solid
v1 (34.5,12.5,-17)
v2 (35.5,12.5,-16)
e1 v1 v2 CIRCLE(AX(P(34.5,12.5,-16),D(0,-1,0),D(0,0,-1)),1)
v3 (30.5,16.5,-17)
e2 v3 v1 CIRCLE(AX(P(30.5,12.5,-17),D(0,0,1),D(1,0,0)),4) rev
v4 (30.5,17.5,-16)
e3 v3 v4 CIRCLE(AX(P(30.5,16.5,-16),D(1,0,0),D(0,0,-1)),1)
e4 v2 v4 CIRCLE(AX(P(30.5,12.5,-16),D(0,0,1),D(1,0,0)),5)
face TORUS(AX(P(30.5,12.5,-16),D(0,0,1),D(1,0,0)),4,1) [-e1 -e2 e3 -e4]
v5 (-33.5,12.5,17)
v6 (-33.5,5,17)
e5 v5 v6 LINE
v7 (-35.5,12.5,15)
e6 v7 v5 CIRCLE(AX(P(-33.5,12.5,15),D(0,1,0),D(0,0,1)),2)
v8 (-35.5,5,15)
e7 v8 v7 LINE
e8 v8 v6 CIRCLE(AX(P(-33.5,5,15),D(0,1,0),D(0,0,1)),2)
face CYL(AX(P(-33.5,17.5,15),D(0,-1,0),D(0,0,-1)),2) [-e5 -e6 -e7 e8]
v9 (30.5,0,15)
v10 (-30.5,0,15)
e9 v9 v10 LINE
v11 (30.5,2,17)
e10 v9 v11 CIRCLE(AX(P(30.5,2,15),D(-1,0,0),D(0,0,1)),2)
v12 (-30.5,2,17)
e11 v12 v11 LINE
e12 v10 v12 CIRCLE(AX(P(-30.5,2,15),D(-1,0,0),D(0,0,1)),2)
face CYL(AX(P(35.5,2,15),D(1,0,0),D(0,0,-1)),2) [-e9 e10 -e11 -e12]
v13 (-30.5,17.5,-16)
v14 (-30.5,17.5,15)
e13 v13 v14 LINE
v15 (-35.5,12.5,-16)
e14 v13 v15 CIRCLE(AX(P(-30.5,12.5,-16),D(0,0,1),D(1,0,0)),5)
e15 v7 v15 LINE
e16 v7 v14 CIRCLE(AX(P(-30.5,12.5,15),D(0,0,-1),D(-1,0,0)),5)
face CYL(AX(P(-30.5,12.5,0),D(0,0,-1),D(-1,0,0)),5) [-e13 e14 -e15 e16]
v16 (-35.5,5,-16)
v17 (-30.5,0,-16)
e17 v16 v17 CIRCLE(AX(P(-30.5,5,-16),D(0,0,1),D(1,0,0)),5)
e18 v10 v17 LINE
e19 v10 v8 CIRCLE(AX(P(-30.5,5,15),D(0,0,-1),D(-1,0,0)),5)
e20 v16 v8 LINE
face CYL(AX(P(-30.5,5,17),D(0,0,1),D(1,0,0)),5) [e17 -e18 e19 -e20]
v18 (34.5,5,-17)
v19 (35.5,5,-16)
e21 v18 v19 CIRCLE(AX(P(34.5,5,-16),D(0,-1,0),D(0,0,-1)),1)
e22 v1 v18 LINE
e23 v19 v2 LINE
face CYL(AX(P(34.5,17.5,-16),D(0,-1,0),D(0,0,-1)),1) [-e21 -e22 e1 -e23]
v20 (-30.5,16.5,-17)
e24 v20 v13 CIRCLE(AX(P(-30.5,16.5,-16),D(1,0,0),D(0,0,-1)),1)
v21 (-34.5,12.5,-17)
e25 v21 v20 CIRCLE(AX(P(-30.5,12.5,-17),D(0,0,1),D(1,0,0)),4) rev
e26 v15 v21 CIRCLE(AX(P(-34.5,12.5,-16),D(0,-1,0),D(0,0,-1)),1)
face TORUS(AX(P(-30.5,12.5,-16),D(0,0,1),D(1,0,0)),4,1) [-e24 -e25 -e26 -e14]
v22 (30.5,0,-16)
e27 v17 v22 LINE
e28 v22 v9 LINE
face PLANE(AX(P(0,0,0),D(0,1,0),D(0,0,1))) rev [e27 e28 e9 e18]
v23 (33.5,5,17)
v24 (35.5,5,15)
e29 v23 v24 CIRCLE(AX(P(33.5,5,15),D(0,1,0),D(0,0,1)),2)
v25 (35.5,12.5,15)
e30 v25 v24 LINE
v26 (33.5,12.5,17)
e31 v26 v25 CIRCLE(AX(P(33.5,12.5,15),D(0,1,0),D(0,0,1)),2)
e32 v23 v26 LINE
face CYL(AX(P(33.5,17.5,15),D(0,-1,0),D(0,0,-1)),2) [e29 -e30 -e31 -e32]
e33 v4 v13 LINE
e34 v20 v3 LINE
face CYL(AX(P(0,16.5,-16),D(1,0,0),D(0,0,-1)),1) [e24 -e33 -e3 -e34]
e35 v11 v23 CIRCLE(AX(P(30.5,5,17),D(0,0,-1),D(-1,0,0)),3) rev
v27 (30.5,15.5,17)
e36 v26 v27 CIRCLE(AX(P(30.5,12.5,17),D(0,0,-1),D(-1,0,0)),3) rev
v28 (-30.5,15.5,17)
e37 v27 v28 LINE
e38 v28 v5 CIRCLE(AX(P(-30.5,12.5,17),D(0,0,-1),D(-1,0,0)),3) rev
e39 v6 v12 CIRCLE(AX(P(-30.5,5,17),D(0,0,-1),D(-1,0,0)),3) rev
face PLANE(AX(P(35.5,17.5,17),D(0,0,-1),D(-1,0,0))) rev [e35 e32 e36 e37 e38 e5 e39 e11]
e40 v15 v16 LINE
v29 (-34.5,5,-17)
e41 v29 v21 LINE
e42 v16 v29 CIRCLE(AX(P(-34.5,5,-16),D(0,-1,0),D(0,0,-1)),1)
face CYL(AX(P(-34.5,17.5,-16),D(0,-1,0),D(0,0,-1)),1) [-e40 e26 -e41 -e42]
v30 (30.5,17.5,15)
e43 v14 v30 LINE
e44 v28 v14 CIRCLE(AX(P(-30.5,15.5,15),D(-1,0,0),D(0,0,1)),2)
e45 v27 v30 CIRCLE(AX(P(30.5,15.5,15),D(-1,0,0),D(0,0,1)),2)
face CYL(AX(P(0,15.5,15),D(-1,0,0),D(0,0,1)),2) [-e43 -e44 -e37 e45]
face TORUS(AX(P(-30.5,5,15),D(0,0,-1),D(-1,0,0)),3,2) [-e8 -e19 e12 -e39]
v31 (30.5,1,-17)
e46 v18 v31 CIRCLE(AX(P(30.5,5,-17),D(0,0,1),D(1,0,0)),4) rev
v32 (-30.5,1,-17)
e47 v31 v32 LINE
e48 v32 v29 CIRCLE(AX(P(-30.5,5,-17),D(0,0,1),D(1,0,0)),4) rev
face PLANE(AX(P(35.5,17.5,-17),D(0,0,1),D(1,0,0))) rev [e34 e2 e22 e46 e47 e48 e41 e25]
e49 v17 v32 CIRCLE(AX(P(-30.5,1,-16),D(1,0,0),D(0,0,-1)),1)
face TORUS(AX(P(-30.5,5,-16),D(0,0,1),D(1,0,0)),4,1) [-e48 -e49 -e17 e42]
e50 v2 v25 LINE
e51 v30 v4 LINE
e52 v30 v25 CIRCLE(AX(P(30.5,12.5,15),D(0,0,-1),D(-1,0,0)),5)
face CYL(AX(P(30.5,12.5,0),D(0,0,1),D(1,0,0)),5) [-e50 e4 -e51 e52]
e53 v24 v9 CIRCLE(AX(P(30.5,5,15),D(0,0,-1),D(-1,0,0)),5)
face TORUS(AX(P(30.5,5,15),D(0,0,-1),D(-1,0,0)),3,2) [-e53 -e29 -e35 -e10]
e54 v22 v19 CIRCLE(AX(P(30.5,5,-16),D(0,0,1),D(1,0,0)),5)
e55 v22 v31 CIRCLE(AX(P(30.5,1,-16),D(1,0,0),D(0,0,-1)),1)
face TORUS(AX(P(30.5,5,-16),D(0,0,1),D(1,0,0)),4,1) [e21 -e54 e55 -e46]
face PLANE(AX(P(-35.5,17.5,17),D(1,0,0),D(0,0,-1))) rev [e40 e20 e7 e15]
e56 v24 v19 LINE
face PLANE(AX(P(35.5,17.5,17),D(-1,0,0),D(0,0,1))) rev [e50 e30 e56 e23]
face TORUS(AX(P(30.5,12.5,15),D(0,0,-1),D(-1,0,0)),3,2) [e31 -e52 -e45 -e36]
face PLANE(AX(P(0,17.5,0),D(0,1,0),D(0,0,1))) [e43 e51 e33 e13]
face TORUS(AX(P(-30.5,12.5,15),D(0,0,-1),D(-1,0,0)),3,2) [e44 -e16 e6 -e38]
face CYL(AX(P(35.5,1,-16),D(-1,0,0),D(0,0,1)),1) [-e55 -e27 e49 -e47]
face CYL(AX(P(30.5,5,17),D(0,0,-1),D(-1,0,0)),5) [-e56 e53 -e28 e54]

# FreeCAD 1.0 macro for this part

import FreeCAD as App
import Part
import Sketcher


def edges_at(feature, points):
    """Names of the edges that pass closest to the given points."""
    edges = feature.Shape.Edges
    near = lambda p: min(range(len(edges)), key=lambda i: edges[i].distToShape(Part.Vertex(*p))[0])
    return sorted({f"Edge{near(p) + 1}" for p in points})


def add_polygon(sketch, points):
    """Adds a closed chain of lines whose ends are joined by coincident constraints."""
    first, n = sketch.GeometryCount, len(points)
    for a, b in zip(points, points[1:] + points[:1]):
        sketch.addGeometry(Part.LineSegment(App.Vector(*a, 0), App.Vector(*b, 0)), False)
    for i in range(n):
        sketch.addConstraint(Sketcher.Constraint("Coincident", first + i, 2, first + (i + 1) % n, 1))

doc = App.newDocument("Part")
body = doc.addObject("PartDesign::Body", "Body")

# Sketch on XZ plane
sketch1 = doc.addObject("Sketcher::SketchObject", "Sketch")
body.addObject(sketch1)
sketch1.AttachmentSupport = (doc.XZ_Plane, [""])
sketch1.MapMode = "FlatFace"
add_polygon(sketch1, [(-35.5, -17), (-35.5, 17), (35.5, 17), (35.5, -17)])  # lines 0-3
sketch1.addConstraint([
    Sketcher.Constraint("Vertical", 0),
    Sketcher.Constraint("Horizontal", 1),
    Sketcher.Constraint("Vertical", 2),
    Sketcher.Constraint("Horizontal", 3),
    Sketcher.Constraint("Symmetric", 0, 2, 2, 2, -1, 1),
    Sketcher.Constraint("DistanceX", 1, 1, 1, 2, 71.0),
    Sketcher.Constraint("DistanceY", 0, 1, 0, 2, 34.0),
])
pad1 = doc.addObject("PartDesign::Pad", "Pad")
body.addObject(pad1)
pad1.Profile = sketch1
pad1.Length = 17.5
pad1.Reversed = True
doc.recompute()

fillet = doc.addObject("PartDesign::Fillet", "Fillet")
body.addObject(fillet)
fillet.Base = (pad1, edges_at(pad1, [
    (35.5, 17.5, 0),
    (-35.5, 17.5, 0),
    (35.5, 0, 0),
    (-35.5, 0, 0),
]))
fillet.Radius = 5
doc.recompute()

fillet2 = doc.addObject("PartDesign::Fillet", "Fillet001")
body.addObject(fillet2)
fillet2.Base = (fillet, edges_at(fillet, [
    (-35.5, 8.75, 17),
    (0, 0, 17),
    (35.5, 8.75, 17),
    (0, 17.5, 17),
    (-34.036, 16.036, 17),
    (34.036, 16.036, 17),
    (34.036, 1.464, 17),
    (-34.036, 1.464, 17),
]))
fillet2.Radius = 2
doc.recompute()

fillet3 = doc.addObject("PartDesign::Fillet", "Fillet002")
body.addObject(fillet3)
fillet3.Base = (fillet2, edges_at(fillet2, [
    (-35.5, 8.75, -17),
    (0, 0, -17),
    (0, 17.5, -17),
    (35.5, 8.75, -17),
    (-34.036, 16.036, -17),
    (34.036, 16.036, -17),
    (34.036, 1.464, -17),
    (-34.036, 1.464, -17),
]))
fillet3.Radius = 1

doc.recompute()
